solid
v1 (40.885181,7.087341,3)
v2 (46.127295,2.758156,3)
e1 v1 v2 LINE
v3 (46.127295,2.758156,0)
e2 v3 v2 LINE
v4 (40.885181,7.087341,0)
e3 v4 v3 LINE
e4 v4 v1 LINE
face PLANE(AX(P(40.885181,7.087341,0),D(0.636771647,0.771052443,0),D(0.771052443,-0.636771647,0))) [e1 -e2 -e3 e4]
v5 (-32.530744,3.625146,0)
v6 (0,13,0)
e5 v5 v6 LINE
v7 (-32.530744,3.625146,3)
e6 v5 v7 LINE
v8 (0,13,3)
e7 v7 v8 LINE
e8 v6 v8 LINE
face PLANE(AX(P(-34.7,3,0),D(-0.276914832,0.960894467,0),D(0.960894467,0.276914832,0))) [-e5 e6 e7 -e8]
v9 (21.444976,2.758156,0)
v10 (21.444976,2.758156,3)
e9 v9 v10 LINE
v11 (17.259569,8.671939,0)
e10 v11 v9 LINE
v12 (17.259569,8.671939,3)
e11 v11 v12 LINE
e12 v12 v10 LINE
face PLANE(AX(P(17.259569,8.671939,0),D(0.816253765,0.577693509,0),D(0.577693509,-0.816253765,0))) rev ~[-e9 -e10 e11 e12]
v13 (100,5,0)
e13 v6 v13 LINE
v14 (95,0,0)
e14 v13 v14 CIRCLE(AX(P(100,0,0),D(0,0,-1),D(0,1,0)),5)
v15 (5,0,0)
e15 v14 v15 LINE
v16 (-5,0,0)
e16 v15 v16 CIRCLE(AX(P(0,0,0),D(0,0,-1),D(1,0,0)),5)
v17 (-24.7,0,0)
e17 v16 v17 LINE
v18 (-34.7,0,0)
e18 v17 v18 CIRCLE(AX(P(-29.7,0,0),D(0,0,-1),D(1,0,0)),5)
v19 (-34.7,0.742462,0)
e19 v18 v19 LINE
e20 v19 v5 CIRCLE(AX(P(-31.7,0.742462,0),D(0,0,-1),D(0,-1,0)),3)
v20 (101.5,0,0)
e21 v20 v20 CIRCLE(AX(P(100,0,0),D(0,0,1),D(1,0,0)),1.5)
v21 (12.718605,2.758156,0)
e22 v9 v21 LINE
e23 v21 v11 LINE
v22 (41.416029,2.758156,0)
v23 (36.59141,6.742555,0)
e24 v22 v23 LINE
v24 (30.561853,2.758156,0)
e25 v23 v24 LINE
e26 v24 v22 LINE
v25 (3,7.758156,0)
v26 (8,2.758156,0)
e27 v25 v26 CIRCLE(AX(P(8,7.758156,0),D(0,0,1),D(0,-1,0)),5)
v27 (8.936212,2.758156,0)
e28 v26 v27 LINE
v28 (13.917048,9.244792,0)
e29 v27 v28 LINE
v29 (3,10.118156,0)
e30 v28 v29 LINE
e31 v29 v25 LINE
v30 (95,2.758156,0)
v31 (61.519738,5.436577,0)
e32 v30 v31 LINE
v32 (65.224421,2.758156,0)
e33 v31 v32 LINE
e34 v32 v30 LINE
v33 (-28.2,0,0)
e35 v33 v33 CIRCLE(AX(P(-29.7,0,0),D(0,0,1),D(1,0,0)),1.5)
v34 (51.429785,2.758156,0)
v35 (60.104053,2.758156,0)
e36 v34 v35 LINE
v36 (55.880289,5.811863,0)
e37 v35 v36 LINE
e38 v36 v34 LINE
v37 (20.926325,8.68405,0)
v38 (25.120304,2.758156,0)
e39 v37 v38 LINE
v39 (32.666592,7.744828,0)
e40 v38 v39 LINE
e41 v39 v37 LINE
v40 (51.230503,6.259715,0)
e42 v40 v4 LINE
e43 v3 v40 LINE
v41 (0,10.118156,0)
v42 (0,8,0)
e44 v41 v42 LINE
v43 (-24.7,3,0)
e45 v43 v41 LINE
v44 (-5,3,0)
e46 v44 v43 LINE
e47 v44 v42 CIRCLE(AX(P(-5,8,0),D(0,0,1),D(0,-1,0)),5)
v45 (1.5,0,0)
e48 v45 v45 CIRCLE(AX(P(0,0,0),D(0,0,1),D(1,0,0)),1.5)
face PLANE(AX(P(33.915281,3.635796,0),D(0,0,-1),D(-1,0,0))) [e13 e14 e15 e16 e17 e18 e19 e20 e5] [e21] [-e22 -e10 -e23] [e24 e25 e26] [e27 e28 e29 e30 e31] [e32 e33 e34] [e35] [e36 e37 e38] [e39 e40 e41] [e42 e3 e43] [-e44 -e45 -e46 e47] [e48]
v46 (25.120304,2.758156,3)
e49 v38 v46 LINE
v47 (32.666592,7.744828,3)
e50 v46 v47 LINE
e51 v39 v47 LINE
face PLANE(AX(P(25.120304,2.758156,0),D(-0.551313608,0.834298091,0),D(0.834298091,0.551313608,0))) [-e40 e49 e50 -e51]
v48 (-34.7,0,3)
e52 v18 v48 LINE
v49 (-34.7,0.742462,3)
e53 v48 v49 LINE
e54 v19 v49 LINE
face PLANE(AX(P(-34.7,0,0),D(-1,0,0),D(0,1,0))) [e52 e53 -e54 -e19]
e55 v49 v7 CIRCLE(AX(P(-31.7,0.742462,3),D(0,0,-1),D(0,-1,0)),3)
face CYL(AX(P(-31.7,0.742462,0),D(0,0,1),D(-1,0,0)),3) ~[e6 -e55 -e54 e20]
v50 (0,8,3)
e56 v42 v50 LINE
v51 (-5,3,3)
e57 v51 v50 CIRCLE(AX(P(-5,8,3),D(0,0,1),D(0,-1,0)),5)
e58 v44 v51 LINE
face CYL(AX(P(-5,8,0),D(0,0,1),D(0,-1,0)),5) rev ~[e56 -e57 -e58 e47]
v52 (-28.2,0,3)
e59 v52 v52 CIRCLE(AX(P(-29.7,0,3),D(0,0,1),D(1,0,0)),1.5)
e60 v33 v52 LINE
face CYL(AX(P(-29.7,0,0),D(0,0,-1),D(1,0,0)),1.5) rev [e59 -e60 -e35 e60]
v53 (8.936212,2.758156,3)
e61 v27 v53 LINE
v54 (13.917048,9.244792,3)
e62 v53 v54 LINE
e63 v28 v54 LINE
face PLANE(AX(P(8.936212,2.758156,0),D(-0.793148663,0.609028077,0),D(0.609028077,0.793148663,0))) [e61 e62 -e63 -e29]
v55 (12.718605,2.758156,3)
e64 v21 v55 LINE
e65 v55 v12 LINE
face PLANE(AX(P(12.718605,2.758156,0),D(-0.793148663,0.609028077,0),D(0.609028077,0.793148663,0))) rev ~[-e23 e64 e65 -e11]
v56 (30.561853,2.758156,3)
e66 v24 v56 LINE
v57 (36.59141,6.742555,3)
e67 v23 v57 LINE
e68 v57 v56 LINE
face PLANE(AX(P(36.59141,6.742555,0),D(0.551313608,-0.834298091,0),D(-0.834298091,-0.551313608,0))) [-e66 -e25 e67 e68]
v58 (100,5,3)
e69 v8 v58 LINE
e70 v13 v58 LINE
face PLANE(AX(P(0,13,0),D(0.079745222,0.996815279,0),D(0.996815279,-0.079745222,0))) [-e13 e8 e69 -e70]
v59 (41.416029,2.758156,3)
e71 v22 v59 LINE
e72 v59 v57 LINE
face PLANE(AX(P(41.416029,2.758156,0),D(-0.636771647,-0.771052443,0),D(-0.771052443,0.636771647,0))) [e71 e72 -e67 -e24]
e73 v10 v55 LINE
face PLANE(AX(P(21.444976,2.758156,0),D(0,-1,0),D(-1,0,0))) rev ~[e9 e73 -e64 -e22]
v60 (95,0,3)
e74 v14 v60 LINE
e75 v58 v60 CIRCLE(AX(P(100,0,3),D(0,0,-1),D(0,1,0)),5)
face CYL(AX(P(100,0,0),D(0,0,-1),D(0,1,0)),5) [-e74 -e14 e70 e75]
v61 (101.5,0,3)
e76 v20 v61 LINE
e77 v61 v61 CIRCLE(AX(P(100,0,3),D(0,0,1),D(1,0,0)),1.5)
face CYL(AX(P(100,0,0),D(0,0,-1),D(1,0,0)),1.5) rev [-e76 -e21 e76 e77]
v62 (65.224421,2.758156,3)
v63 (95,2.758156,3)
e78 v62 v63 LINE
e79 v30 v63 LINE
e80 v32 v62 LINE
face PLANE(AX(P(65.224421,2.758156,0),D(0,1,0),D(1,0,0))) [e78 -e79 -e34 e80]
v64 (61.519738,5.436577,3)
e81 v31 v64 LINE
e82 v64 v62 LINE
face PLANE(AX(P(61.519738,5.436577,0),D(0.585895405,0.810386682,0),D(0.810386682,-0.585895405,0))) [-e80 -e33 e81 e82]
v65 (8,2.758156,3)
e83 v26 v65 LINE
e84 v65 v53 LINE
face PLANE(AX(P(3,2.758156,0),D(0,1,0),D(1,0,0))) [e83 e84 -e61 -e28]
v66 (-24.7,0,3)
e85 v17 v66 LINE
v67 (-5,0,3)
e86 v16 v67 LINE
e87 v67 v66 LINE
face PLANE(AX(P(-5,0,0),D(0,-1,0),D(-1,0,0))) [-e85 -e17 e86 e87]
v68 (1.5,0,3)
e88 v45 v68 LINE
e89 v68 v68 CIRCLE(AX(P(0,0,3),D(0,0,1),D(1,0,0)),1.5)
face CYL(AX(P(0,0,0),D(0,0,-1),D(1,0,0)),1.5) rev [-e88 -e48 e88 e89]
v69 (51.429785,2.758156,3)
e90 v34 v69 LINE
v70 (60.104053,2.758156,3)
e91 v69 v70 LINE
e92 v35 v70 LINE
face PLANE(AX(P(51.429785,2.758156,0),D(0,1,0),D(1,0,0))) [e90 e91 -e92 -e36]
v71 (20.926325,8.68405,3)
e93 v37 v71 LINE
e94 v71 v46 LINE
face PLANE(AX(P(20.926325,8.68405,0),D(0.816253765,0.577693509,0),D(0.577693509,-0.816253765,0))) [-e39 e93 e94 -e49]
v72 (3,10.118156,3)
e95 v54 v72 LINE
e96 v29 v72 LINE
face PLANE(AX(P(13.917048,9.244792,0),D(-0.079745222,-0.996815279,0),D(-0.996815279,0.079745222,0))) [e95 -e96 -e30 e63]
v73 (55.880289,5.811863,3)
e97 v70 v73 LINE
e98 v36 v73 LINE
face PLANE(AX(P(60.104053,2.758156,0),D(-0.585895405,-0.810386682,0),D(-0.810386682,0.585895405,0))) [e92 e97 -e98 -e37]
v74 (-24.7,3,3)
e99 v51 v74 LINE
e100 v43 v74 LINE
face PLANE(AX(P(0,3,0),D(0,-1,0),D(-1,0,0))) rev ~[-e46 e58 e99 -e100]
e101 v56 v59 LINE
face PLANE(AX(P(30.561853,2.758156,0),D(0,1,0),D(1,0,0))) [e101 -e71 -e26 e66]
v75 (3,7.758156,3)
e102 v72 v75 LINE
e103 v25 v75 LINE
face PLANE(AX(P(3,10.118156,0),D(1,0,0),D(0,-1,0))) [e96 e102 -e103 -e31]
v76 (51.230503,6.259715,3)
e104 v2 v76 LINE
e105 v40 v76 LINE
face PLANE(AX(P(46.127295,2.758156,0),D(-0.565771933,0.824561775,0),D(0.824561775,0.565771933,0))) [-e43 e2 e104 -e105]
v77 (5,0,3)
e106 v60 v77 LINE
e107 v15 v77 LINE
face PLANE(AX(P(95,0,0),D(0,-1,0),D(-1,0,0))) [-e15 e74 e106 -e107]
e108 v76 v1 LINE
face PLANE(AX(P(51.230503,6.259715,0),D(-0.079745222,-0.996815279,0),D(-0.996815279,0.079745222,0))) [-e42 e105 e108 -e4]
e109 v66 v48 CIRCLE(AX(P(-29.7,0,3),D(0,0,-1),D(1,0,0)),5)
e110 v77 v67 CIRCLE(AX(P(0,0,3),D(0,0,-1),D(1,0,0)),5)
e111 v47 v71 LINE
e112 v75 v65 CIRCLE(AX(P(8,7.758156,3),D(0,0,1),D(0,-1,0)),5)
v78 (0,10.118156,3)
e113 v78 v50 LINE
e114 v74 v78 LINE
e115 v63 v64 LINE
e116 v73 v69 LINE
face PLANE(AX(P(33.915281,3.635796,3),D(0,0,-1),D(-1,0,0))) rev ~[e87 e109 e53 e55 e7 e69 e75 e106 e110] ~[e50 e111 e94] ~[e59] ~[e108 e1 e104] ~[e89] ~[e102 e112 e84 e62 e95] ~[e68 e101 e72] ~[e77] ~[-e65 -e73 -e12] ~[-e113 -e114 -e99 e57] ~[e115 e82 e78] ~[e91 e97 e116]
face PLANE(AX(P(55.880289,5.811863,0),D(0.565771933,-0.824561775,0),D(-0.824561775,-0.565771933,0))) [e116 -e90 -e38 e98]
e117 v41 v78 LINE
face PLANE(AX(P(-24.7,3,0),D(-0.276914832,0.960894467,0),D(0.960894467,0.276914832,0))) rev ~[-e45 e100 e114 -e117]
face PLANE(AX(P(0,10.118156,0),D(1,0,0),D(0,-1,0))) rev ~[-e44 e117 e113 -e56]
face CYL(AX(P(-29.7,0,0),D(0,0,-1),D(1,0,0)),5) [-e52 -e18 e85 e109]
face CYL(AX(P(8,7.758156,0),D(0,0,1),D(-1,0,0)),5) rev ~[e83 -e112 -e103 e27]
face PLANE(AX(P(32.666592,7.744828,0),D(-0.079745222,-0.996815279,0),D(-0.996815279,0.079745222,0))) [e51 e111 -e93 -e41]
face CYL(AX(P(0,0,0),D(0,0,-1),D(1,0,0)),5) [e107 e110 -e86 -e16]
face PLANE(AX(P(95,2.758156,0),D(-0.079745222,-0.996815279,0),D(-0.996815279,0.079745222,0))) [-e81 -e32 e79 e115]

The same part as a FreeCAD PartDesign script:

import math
import FreeCAD as App
import Part
import Sketcher
from FreeCAD import Vector
Q = App.Units.Quantity


def edges_at(feature, points):
    """Names of the edges that pass closest to the given points."""
    edges = feature.Shape.Edges
    near = lambda p: min(range(len(edges)), key=lambda i: edges[i].distToShape(Part.Vertex(*p))[0])
    return sorted({f"Edge{near(p) + 1}" for p in points})

doc = App.newDocument("Part")
body = doc.addObject("PartDesign::Body", "Body")

# Sketch on XY plane
sketch1 = body.newObject("Sketcher::SketchObject", "Sketch")
sketch1.AttachmentSupport = (doc.getObject("XY_Plane"), [""])
sketch1.MapMode = "FlatFace"
sketch1.addGeometry([
    Part.LineSegment(Vector(-34.7, 3, 0), Vector(-34.7, 0, 0)),  # 0
    Part.ArcOfCircle(Part.Circle(Vector(-29.7, 0, 0), Vector(0, 0, 1), 5), math.radians(180), math.radians(360)),  # 1
    Part.LineSegment(Vector(-24.7, 0, 0), Vector(-5, 0, 0)),  # 2
    Part.ArcOfCircle(Part.Circle(Vector(0, 0, 0), Vector(0, 0, 1), 5), math.radians(180), math.radians(360)),  # 3
    Part.LineSegment(Vector(5, 0, 0), Vector(95, 0, 0)),  # 4
    Part.ArcOfCircle(Part.Circle(Vector(100, 0, 0), Vector(0, 0, 1), 5), math.radians(180), math.radians(450)),  # 5
    Part.LineSegment(Vector(100, 5, 0), Vector(0, 13, 0)),  # 6
    Part.LineSegment(Vector(0, 13, 0), Vector(-34.7, 3, 0)),  # 7
    Part.Circle(Vector(100, 0, 0), Vector(0, 0, 1), 1.5),  # 8
    Part.LineSegment(Vector(95, 2.758156, 0), Vector(65.224421, 2.758156, 0)),  # 9
    Part.LineSegment(Vector(65.224421, 2.758156, 0), Vector(61.519738, 5.436577, 0)),  # 10
    Part.LineSegment(Vector(61.519738, 5.436577, 0), Vector(95, 2.758156, 0)),  # 11
    Part.LineSegment(Vector(51.429785, 2.758156, 0), Vector(55.880289, 5.811863, 0)),  # 12
    Part.LineSegment(Vector(55.880289, 5.811863, 0), Vector(60.104053, 2.758156, 0)),  # 13
    Part.LineSegment(Vector(60.104053, 2.758156, 0), Vector(51.429785, 2.758156, 0)),  # 14
    Part.Circle(Vector(0, 0, 0), Vector(0, 0, 1), 1.5),  # 15
    Part.Circle(Vector(-29.7, 0, 0), Vector(0, 0, 1), 1.5),  # 16
    Part.LineSegment(Vector(40.885181, 7.087341, 0), Vector(51.230503, 6.259715, 0)),  # 17
    Part.LineSegment(Vector(51.230503, 6.259715, 0), Vector(46.127295, 2.758156, 0)),  # 18
    Part.LineSegment(Vector(46.127295, 2.758156, 0), Vector(40.885181, 7.087341, 0)),  # 19
    Part.LineSegment(Vector(30.561853, 2.758156, 0), Vector(36.59141, 6.742555, 0)),  # 20
    Part.LineSegment(Vector(36.59141, 6.742555, 0), Vector(41.416029, 2.758156, 0)),  # 21
    Part.LineSegment(Vector(41.416029, 2.758156, 0), Vector(30.561853, 2.758156, 0)),  # 22
    Part.LineSegment(Vector(20.926325, 8.68405, 0), Vector(32.666592, 7.744828, 0)),  # 23
    Part.LineSegment(Vector(32.666592, 7.744828, 0), Vector(25.120304, 2.758156, 0)),  # 24
    Part.LineSegment(Vector(25.120304, 2.758156, 0), Vector(20.926325, 8.68405, 0)),  # 25
    Part.LineSegment(Vector(12.718605, 2.758156, 0), Vector(17.259569, 8.671939, 0)),  # 26
    Part.LineSegment(Vector(17.259569, 8.671939, 0), Vector(21.444976, 2.758156, 0)),  # 27
    Part.LineSegment(Vector(21.444976, 2.758156, 0), Vector(12.718605, 2.758156, 0)),  # 28
    Part.LineSegment(Vector(3, 10.118156, 0), Vector(13.917048, 9.244792, 0)),  # 29
    Part.LineSegment(Vector(13.917048, 9.244792, 0), Vector(8.936212, 2.758156, 0)),  # 30
    Part.LineSegment(Vector(8.936212, 2.758156, 0), Vector(3, 2.758156, 0)),  # 31
    Part.LineSegment(Vector(3, 2.758156, 0), Vector(3, 10.118156, 0)),  # 32
    Part.LineSegment(Vector(-24.7, 3, 0), Vector(0, 10.118156, 0)),  # 33
    Part.LineSegment(Vector(0, 10.118156, 0), Vector(0, 3, 0)),  # 34
    Part.LineSegment(Vector(0, 3, 0), Vector(-24.7, 3, 0)),  # 35
], False)
sketch1.addConstraint([
    Sketcher.Constraint("Tangent", 0, 2, 1, 1),
    Sketcher.Constraint("Coincident", 1, 2, 2, 1),
    Sketcher.Constraint("Coincident", 2, 2, 3, 1),
    Sketcher.Constraint("Coincident", 3, 2, 4, 1),
    Sketcher.Constraint("Coincident", 4, 2, 5, 1),
    Sketcher.Constraint("Coincident", 5, 2, 6, 1),
    Sketcher.Constraint("Coincident", 6, 2, 7, 1),
    Sketcher.Constraint("Coincident", 7, 2, 0, 1),
    Sketcher.Constraint("Coincident", 9, 2, 10, 1),
    Sketcher.Constraint("Coincident", 10, 2, 11, 1),
    Sketcher.Constraint("Coincident", 11, 2, 9, 1),
    Sketcher.Constraint("Coincident", 12, 2, 13, 1),
    Sketcher.Constraint("Coincident", 13, 2, 14, 1),
    Sketcher.Constraint("Coincident", 14, 2, 12, 1),
    Sketcher.Constraint("Coincident", 17, 2, 18, 1),
    Sketcher.Constraint("Coincident", 18, 2, 19, 1),
    Sketcher.Constraint("Coincident", 19, 2, 17, 1),
    Sketcher.Constraint("Coincident", 20, 2, 21, 1),
    Sketcher.Constraint("Coincident", 21, 2, 22, 1),
    Sketcher.Constraint("Coincident", 22, 2, 20, 1),
    Sketcher.Constraint("Coincident", 23, 2, 24, 1),
    Sketcher.Constraint("Coincident", 24, 2, 25, 1),
    Sketcher.Constraint("Coincident", 25, 2, 23, 1),
    Sketcher.Constraint("Coincident", 26, 2, 27, 1),
    Sketcher.Constraint("Coincident", 27, 2, 28, 1),
    Sketcher.Constraint("Coincident", 28, 2, 26, 1),
    Sketcher.Constraint("Coincident", 29, 2, 30, 1),
    Sketcher.Constraint("Coincident", 30, 2, 31, 1),
    Sketcher.Constraint("Coincident", 31, 2, 32, 1),
    Sketcher.Constraint("Coincident", 32, 2, 29, 1),
    Sketcher.Constraint("Coincident", 33, 2, 34, 1),
    Sketcher.Constraint("Coincident", 34, 2, 35, 1),
    Sketcher.Constraint("Coincident", 35, 2, 33, 1),
    Sketcher.Constraint("Vertical", 0),
    Sketcher.Constraint("Horizontal", 2),
    Sketcher.Constraint("Horizontal", 4),
    Sketcher.Constraint("Horizontal", 9),
    Sketcher.Constraint("Horizontal", 14),
    Sketcher.Constraint("Horizontal", 22),
    Sketcher.Constraint("Horizontal", 28),
    Sketcher.Constraint("Horizontal", 31),
    Sketcher.Constraint("Vertical", 32),
    Sketcher.Constraint("Vertical", 34),
    Sketcher.Constraint("Horizontal", 35),
    Sketcher.Constraint("Coincident", 3, 3, -1, 1),
    Sketcher.Constraint("Coincident", 15, 3, -1, 1),
    Sketcher.Constraint("Coincident", 8, 3, 5, 3),
    Sketcher.Constraint("Coincident", 16, 3, 1, 3),
    Sketcher.Constraint("Equal", 1, 3),
    Sketcher.Constraint("Equal", 3, 5),
    Sketcher.Constraint("Equal", 8, 15),
    Sketcher.Constraint("Equal", 15, 16),
    Sketcher.Constraint("PointOnObject", 1, 3, -1),
    Sketcher.Constraint("PointOnObject", 5, 3, -1),
    Sketcher.Constraint("PointOnObject", 1, 2, -1),
    Sketcher.Constraint("PointOnObject", 3, 2, -1),
    Sketcher.Constraint("PointOnObject", 6, 2, -2),
    Sketcher.Constraint("PointOnObject", 33, 2, -2),
    Sketcher.Constraint("Parallel", 6, 11),
    Sketcher.Constraint("Parallel", 10, 13),
    Sketcher.Constraint("Parallel", 11, 17),
    Sketcher.Constraint("Parallel", 12, 18),
    Sketcher.Constraint("Parallel", 19, 21),
    Sketcher.Constraint("Parallel", 17, 23),
    Sketcher.Constraint("Parallel", 20, 24),
    Sketcher.Constraint("Parallel", 25, 27),
    Sketcher.Constraint("Parallel", 23, 29),
    Sketcher.Constraint("Parallel", 26, 30),
    Sketcher.Constraint("Parallel", 7, 33),
    Sketcher.Constraint("Horizontal", 11, 2, 13, 2),
    Sketcher.Constraint("Horizontal", 14, 2, 18, 2),
    Sketcher.Constraint("Horizontal", 18, 2, 21, 2),
    Sketcher.Constraint("Horizontal", 22, 2, 24, 2),
    Sketcher.Constraint("Horizontal", 24, 2, 27, 2),
    Sketcher.Constraint("Horizontal", 28, 2, 30, 2),
    Sketcher.Constraint("Horizontal", 32, 2, 33, 2),
    Sketcher.Constraint("Horizontal", 7, 2, 34, 2),
    Sketcher.Constraint("Vertical", 8, 3, 5, 2),
    Sketcher.Constraint("Vertical", 4, 2, 11, 2),
    Sketcher.Constraint("Vertical", 1, 2, 35, 2),
    Sketcher.Constraint("Diameter", 8, Q("3 mm")),
    Sketcher.Constraint("Radius", 1, Q("5 mm")),
    Sketcher.Constraint("DistanceX", 4, 1, 4, 2, Q("90 mm")),
    Sketcher.Constraint("DistanceY", 0, 2, 0, 1, Q("3 mm")),
    Sketcher.Constraint("DistanceX", 2, 1, 2, 2, Q("19.7 mm")),
    Sketcher.Constraint("DistanceY", -1, 1, 6, 2, Q("13 mm")),
    Sketcher.Constraint("DistanceX", -1, 1, 31, 2, Q("3 mm")),
    Sketcher.Constraint("DistanceY", 32, 1, 32, 2, Q("7.36 mm")),
    Sketcher.Constraint("Distance", 10, Q("4.5715 mm")),
    Sketcher.Constraint("Distance", 20, Q("7.227102 mm")),
    Sketcher.Constraint("DistanceX", 9, 2, 9, 1, Q("29.775579 mm")),
    Sketcher.Constraint("DistanceX", 14, 2, 14, 1, Q("8.674268 mm")),
    Sketcher.Constraint("DistanceX", 28, 2, 28, 1, Q("8.726371 mm")),
    Sketcher.Constraint("DistanceX", 31, 2, 31, 1, Q("5.936212 mm")),
    Sketcher.Constraint("DistanceY", 18, 2, 20, 2, Q("3.9844 mm")),
    Sketcher.Constraint("DistanceX", 28, 2, 24, 2, Q("12.401699 mm")),
    Sketcher.Constraint("Distance", 27, Q("7.24503 mm")),
    Sketcher.Constraint("DistanceX", 22, 2, 22, 1, Q("10.854177 mm")),
    Sketcher.Constraint("DistanceX", -1, 1, 12, 2, Q("55.880289 mm")),
    Sketcher.Constraint("DistanceX", -1, 1, 19, 2, Q("40.885181 mm")),
    Sketcher.Constraint("DistanceY", -1, 1, 19, 2, Q("7.087341 mm")),
    Sketcher.Constraint("DistanceX", -1, 1, 20, 2, Q("36.59141 mm")),
    Sketcher.Constraint("DistanceY", -1, 1, 23, 2, Q("7.744828 mm")),
    Sketcher.Constraint("DistanceY", -1, 1, 25, 2, Q("8.68405 mm")),
    Sketcher.Constraint("DistanceX", -1, 1, 26, 2, Q("17.259569 mm")),
    Sketcher.Constraint("DistanceX", 17, 2, 14, 2, Q("0.199281 mm")),
])
pad1 = body.newObject("PartDesign::Pad", "Pad")
pad1.Profile = sketch1
pad1.Length = 3
doc.recompute()

fillet = body.newObject("PartDesign::Fillet", "Fillet")
fillet.Base = (pad1, edges_at(pad1, [(-34.7, 3, 1.5)]))
fillet.Radius = 3
doc.recompute()

fillet2 = body.newObject("PartDesign::Fillet", "Fillet001")
fillet2.Base = (fillet, edges_at(fillet, [(0, 3, 1.5)]))
fillet2.Radius = 5
doc.recompute()

fillet3 = body.newObject("PartDesign::Fillet", "Fillet002")
fillet3.Base = (fillet2, edges_at(fillet2, [(3, 2.758, 1.5)]))
fillet3.Radius = 5

doc.recompute()
